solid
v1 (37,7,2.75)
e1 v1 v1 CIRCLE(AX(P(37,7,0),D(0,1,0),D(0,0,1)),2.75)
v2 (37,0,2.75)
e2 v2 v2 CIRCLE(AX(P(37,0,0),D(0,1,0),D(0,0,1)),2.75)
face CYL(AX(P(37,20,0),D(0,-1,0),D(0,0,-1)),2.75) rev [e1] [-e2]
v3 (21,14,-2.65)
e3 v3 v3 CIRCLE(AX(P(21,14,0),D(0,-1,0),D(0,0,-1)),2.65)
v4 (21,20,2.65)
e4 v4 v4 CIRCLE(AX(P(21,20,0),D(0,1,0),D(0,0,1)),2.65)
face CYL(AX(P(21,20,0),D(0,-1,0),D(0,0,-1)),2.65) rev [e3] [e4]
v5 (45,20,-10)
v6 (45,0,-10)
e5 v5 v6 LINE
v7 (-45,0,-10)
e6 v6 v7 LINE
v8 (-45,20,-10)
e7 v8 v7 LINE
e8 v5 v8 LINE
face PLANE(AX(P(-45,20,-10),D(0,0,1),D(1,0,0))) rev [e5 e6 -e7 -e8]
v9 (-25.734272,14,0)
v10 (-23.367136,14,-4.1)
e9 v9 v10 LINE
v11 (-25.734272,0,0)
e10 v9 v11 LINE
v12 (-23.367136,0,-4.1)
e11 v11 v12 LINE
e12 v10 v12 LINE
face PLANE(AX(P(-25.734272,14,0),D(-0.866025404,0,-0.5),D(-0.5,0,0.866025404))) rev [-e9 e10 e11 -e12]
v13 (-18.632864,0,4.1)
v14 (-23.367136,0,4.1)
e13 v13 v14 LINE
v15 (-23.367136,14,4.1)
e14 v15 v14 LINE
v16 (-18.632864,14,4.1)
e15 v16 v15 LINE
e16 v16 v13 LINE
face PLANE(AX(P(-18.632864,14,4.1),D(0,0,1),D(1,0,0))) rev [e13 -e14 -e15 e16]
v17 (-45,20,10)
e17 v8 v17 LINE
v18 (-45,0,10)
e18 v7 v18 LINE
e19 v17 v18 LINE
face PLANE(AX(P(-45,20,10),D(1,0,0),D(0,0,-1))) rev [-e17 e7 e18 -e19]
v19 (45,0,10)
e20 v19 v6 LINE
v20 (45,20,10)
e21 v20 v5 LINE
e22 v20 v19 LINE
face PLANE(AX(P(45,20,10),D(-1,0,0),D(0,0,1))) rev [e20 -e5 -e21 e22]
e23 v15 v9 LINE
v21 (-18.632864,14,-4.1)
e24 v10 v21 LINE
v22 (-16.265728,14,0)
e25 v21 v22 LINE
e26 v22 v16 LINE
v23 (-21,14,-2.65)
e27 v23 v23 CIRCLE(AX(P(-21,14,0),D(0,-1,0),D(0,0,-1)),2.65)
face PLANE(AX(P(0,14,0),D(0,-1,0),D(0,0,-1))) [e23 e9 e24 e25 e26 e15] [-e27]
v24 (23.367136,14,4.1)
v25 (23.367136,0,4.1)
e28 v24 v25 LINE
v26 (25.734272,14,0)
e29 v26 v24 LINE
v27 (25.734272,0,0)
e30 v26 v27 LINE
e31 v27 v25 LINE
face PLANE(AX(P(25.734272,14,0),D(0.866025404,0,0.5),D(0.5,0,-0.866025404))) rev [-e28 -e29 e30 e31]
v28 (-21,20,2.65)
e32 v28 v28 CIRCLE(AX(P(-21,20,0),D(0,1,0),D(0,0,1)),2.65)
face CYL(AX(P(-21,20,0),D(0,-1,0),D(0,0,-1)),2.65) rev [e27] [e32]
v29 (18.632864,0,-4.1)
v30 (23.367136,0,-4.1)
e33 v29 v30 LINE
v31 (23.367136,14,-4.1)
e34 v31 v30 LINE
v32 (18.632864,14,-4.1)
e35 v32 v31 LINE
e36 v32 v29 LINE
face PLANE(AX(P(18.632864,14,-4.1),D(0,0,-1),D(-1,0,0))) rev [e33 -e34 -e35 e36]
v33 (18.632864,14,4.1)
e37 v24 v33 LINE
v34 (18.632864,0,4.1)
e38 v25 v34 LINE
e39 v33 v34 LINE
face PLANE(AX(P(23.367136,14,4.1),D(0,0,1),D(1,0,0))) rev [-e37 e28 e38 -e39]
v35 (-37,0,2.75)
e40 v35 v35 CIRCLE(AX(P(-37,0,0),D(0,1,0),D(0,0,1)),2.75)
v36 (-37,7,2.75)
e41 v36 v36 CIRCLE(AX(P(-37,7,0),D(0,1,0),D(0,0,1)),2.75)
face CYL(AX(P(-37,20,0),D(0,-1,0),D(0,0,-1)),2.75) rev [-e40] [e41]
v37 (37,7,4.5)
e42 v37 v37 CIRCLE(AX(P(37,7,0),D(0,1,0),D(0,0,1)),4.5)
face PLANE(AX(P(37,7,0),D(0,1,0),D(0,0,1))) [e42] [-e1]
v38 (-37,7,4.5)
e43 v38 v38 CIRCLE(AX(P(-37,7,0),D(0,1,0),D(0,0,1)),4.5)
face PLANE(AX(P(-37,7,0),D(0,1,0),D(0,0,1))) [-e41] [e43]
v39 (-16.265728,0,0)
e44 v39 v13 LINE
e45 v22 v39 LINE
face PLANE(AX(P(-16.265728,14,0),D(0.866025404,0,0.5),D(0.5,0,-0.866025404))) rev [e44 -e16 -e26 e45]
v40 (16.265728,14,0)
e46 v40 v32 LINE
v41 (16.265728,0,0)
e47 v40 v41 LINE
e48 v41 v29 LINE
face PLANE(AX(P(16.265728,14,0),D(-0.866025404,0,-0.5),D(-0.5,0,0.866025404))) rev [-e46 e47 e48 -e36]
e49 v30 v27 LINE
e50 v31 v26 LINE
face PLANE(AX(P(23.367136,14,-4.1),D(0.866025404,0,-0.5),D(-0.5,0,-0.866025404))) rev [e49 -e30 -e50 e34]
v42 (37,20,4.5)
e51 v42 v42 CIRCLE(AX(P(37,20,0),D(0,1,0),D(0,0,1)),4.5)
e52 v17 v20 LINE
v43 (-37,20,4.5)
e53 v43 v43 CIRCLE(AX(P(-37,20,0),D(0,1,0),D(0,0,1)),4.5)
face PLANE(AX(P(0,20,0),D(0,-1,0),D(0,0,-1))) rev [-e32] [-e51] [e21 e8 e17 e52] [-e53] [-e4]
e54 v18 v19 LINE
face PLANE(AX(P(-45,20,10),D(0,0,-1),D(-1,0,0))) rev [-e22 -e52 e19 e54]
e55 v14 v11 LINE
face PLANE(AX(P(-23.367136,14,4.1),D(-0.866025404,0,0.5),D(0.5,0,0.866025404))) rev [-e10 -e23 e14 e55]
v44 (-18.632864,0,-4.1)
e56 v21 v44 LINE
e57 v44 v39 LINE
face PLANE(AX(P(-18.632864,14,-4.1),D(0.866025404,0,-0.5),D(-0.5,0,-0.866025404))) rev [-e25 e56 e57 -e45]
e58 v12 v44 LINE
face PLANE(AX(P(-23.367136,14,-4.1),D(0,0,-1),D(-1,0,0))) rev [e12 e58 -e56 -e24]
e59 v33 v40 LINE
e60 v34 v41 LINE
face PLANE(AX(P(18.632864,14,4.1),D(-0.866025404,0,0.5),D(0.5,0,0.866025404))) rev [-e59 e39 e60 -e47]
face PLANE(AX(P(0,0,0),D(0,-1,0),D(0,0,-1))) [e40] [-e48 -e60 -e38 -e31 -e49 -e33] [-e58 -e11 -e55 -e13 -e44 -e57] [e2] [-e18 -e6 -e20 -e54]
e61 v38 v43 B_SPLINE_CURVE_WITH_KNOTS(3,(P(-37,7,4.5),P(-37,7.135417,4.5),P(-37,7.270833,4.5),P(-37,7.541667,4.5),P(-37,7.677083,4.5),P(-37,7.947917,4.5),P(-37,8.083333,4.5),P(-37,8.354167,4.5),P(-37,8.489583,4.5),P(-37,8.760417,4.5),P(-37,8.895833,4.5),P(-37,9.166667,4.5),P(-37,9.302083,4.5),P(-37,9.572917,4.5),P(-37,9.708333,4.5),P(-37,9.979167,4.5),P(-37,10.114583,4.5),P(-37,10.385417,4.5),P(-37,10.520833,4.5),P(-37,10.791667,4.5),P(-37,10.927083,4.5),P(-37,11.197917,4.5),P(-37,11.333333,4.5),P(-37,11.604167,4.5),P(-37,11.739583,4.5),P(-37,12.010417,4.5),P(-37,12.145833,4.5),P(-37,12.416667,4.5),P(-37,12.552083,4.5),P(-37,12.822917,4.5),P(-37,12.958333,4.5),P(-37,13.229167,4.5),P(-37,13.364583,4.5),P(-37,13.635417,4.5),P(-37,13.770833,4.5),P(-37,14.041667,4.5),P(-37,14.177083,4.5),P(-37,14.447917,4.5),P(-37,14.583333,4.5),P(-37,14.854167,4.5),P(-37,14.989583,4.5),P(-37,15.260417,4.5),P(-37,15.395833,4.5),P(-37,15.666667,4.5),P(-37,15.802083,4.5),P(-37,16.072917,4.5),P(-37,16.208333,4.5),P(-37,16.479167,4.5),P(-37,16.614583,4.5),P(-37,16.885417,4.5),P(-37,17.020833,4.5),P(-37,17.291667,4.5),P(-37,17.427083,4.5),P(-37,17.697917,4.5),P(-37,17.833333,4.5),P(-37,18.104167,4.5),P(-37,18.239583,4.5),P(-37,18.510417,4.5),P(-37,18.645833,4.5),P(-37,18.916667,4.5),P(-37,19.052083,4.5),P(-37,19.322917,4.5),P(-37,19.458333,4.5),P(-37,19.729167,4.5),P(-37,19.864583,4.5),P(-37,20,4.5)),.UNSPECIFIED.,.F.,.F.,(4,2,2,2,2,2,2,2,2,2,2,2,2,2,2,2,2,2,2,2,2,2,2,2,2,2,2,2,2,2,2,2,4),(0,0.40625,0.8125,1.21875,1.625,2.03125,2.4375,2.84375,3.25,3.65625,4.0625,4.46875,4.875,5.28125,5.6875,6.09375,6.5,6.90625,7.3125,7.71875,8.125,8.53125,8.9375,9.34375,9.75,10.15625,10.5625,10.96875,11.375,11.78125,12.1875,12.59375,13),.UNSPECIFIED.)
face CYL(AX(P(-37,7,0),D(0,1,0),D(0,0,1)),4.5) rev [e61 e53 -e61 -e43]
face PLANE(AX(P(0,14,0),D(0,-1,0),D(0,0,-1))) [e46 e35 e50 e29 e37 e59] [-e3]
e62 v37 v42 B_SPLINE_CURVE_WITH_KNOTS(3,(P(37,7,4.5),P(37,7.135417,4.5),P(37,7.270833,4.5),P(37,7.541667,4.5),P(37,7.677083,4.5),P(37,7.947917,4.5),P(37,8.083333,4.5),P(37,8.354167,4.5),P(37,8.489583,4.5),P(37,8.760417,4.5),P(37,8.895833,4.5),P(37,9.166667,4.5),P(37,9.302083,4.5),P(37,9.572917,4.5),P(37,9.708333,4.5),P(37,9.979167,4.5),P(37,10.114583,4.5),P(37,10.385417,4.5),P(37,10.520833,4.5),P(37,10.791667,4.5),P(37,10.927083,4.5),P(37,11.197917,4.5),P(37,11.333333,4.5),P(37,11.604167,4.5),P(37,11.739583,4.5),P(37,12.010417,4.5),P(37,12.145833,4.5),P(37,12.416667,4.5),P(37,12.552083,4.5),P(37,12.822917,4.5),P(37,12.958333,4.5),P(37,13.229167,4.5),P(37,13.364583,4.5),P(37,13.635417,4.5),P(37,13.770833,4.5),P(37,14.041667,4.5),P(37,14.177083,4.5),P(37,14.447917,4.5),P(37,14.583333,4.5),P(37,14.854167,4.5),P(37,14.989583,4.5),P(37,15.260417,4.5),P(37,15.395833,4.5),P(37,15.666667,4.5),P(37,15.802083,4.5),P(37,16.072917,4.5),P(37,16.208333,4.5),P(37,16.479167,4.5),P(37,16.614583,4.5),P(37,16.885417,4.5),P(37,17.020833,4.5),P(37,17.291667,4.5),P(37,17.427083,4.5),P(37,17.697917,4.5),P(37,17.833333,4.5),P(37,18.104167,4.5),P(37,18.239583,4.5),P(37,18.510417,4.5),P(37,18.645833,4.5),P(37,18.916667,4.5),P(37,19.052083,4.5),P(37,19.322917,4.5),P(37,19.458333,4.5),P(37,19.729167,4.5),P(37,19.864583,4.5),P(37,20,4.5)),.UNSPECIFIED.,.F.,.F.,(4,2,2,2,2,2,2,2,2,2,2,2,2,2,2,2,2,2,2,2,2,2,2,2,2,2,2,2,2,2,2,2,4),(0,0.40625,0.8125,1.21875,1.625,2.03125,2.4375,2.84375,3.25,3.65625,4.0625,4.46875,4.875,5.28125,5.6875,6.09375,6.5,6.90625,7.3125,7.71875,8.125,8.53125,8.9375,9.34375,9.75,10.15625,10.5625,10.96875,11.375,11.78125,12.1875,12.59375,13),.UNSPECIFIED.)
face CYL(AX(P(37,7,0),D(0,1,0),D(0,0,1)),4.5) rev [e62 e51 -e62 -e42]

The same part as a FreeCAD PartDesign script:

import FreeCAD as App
import Part
import Sketcher
Q = App.Units.Quantity


def add_polygon(sketch, points):
    """Adds a closed chain of lines whose ends are joined by coincident constraints."""
    first, n = sketch.GeometryCount, len(points)
    for a, b in zip(points, points[1:] + points[:1]):
        sketch.addGeometry(Part.LineSegment(App.Vector(*a, 0), App.Vector(*b, 0)), False)
    for i in range(n):
        sketch.addConstraint(Sketcher.Constraint("Coincident", first + i, 2, first + (i + 1) % n, 1))

doc = App.newDocument("Part")
body = doc.addObject("PartDesign::Body", "Body")

# Sketch on XZ plane
sketch1 = body.newObject("Sketcher::SketchObject", "Sketch")
sketch1.AttachmentSupport = (doc.getObject("XZ_Plane"), [""])
sketch1.MapMode = "FlatFace"
add_polygon(sketch1, [(-45, -10), (-45, 10), (45, 10), (45, -10)])  # lines 0-3
sketch1.addGeometry(Part.Circle(App.Vector(-37, 0, 0), App.Vector(0, 0, 1), 2.8), False)  # 4
sketch1.addGeometry(Part.Circle(App.Vector(-21, 0, 0), App.Vector(0, 0, 1), 2.6), False)  # 5
sketch1.addGeometry(Part.Circle(App.Vector(21, 0, 0), App.Vector(0, 0, 1), 2.6), False)  # 6
sketch1.addGeometry(Part.Circle(App.Vector(37, 0, 0), App.Vector(0, 0, 1), 2.8), False)  # 7
sketch1.addConstraint(Sketcher.Constraint("Vertical", 0))
sketch1.addConstraint(Sketcher.Constraint("Horizontal", 1))
sketch1.addConstraint(Sketcher.Constraint("Vertical", 2))
sketch1.addConstraint(Sketcher.Constraint("Horizontal", 3))
sketch1.addConstraint(Sketcher.Constraint("Equal", 5, 6))
sketch1.addConstraint(Sketcher.Constraint("Equal", 4, 7))
sketch1.addConstraint(Sketcher.Constraint("Symmetric", 5, 3, 6, 3, -1, 1))
sketch1.addConstraint(Sketcher.Constraint("Symmetric", 4, 3, 7, 3, -1, 1))
sketch1.addConstraint(Sketcher.Constraint("Symmetric", 0, 2, 2, 2, -1, 1))
sketch1.addConstraint(Sketcher.Constraint("PointOnObject", 4, 3, -1))
sketch1.addConstraint(Sketcher.Constraint("PointOnObject", 5, 3, -1))
sketch1.addConstraint(Sketcher.Constraint("Diameter", 4, Q("5.5 mm")))
sketch1.addConstraint(Sketcher.Constraint("Diameter", 5, Q("5.3 mm")))
sketch1.addConstraint(Sketcher.Constraint("DistanceX", 1, 1, 1, 2, Q("90 mm")))
sketch1.addConstraint(Sketcher.Constraint("DistanceY", 0, 1, 0, 2, Q("20 mm")))
sketch1.addConstraint(Sketcher.Constraint("DistanceX", 4, 3, -1, 1, Q("37 mm")))
sketch1.addConstraint(Sketcher.Constraint("DistanceX", 5, 3, -1, 1, Q("21 mm")))
pad1 = body.newObject("PartDesign::Pad", "Pad")
pad1.Profile = sketch1
pad1.Length = 20
pad1.Reversed = True

# Sketch on XZ plane
sketch2 = body.newObject("Sketcher::SketchObject", "Sketch001")
sketch2.AttachmentSupport = (doc.getObject("XZ_Plane"), [""])
sketch2.MapMode = "FlatFace"
add_polygon(sketch2, [(-16.3, 0), (-18.6, 4.1), (-23.4, 4.1), (-25.7, 0), (-23.4, -4.1), (-18.6, -4.1)])  # lines 0-5
add_polygon(sketch2, [(25.7, 0), (23.4, 4.1), (18.6, 4.1), (16.3, 0), (18.6, -4.1), (23.4, -4.1)])  # lines 6-11
sketch2.addConstraint(Sketcher.Constraint("Horizontal", 1))
sketch2.addConstraint(Sketcher.Constraint("Horizontal", 4))
sketch2.addConstraint(Sketcher.Constraint("Horizontal", 7))
sketch2.addConstraint(Sketcher.Constraint("Horizontal", 10))
sketch2.addConstraint(Sketcher.Constraint("Symmetric", 3, 2, 6, 2, -1, 1))
sketch2.addConstraint(Sketcher.Constraint("Symmetric", 5, 2, 8, 2, -1, 1))
sketch2.addConstraint(Sketcher.Constraint("Symmetric", 0, 2, 9, 2, -1, 1))
sketch2.addConstraint(Sketcher.Constraint("Symmetric", 2, 2, 11, 2, -1, 1))
sketch2.addConstraint(Sketcher.Constraint("Symmetric", 1, 2, 6, 2, -2))
sketch2.addConstraint(Sketcher.Constraint("PointOnObject", 2, 2, -1))
sketch2.addConstraint(Sketcher.Constraint("PointOnObject", 5, 2, -1))
sketch2.addConstraint(Sketcher.Constraint("Parallel", 0, 3))
sketch2.addConstraint(Sketcher.Constraint("Parallel", 2, 5))
sketch2.addConstraint(Sketcher.Constraint("Parallel", 5, 8))
sketch2.addConstraint(Sketcher.Constraint("Parallel", 8, 11))
sketch2.addConstraint(Sketcher.Constraint("Angle", 0, Q("120 deg")))
sketch2.addConstraint(Sketcher.Constraint("DistanceX", 0, 2, 6, 2, Q("42 mm")))
sketch2.addConstraint(Sketcher.Constraint("DistanceY", -1, 1, 0, 2, Q("4.1 mm")))
sketch2.addConstraint(Sketcher.Constraint("DistanceX", 1, 2, 1, 1, Q("4.734272 mm")))
pocket1 = body.newObject("PartDesign::Pocket", "Pocket")
pocket1.Profile = sketch2
pocket1.Length = 14

# Sketch on XZ plane
sketch3 = body.newObject("Sketcher::SketchObject", "Sketch002")
sketch3.AttachmentSupport = (doc.getObject("XZ_Plane"), [""])
sketch3.MapMode = "FlatFace"
sketch3.AttachmentOffset = App.Placement(App.Vector(0, 0, -20), App.Rotation())
sketch3.addGeometry(Part.Circle(App.Vector(-37, 0, 0), App.Vector(0, 0, 1), 4.5), False)
sketch3.addGeometry(Part.Circle(App.Vector(37, 0, 0), App.Vector(0, 0, 1), 4.5), False)
sketch3.addConstraint(Sketcher.Constraint("Equal", 0, 1))
sketch3.addConstraint(Sketcher.Constraint("Symmetric", 0, 3, 1, 3, -1, 1))
sketch3.addConstraint(Sketcher.Constraint("PointOnObject", 0, 3, -1))
sketch3.addConstraint(Sketcher.Constraint("Diameter", 0, Q("9 mm")))
sketch3.addConstraint(Sketcher.Constraint("DistanceX", 0, 3, -1, 1, Q("37 mm")))
pocket2 = body.newObject("PartDesign::Pocket", "Pocket001")
pocket2.Profile = sketch3
pocket2.Length = 13
pocket2.Reversed = True

doc.recompute()
